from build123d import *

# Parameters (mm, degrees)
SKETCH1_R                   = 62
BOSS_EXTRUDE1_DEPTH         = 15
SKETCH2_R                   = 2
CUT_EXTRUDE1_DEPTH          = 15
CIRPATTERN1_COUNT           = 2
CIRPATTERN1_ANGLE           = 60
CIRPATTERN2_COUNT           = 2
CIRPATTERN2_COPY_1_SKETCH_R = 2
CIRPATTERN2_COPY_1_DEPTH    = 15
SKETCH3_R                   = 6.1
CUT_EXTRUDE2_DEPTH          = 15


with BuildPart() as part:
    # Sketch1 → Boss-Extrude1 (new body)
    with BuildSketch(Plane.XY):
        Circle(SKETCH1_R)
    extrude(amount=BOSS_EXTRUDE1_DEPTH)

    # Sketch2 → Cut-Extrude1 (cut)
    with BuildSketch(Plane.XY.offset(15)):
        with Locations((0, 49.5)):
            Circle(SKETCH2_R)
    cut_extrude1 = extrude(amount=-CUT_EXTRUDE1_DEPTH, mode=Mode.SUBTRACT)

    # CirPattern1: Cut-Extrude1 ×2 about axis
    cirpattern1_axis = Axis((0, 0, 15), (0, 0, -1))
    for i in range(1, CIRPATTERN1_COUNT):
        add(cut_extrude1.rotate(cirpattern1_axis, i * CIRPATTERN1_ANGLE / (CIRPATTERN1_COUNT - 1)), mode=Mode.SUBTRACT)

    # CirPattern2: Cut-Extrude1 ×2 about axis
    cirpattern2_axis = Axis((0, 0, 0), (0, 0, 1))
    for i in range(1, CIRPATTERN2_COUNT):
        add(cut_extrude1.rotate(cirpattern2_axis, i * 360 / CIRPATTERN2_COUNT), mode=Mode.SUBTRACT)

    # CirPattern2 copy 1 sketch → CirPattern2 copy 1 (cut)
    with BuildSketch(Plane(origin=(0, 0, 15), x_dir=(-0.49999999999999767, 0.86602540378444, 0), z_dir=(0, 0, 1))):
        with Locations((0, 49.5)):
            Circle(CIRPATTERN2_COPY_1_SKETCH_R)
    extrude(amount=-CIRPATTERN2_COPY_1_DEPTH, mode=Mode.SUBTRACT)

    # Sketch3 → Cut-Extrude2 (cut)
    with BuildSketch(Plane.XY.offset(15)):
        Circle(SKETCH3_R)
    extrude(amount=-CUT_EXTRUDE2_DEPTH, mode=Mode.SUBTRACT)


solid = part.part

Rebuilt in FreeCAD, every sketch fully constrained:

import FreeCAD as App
import Part
import Sketcher

V = App.Vector
Q = App.Units.Quantity

doc = App.newDocument("Part")
params = doc.addObject("Spreadsheet::Sheet", "Params")
for row, (alias, value) in enumerate([
    ("sketch1_diameter", "124 mm"),
    ("pad1_length", "15 mm"),
    ("sketch2_diameter", "4 mm"),
    ("pocket1_length", "15 mm"),
    ("sketch3_diameter", "4 mm"),
    ("pocket2_length", "15 mm"),
    ("sketch4_diameter", "12.2 mm"),
    ("pocket3_length", "15 mm"),
], start=1):
    params.set(f"A{row}", alias)
    params.set(f"B{row}", "=" + value)
    params.setAlias(f"B{row}", alias)

body = doc.addObject("PartDesign::Body", "Body")

sketch1 = body.newObject("Sketcher::SketchObject", "Sketch")
sketch1.AttachmentSupport = (doc.getObject("XY_Plane"), [""])
sketch1.MapMode = "FlatFace"
sketch1.addGeometry(Part.Circle(V(0, 0, 0), V(0, 0, 1), 62), False)
sketch1.addConstraint(Sketcher.Constraint("Coincident", 0, 3, -1, 1))
sketch1.addConstraint(Sketcher.Constraint("Diameter", 0, Q("124 mm")))
sketch1.setExpression("Constraints[1]", "Params.sketch1_diameter")
pad1 = body.newObject("PartDesign::Pad", "Pad")
pad1.Profile = sketch1
pad1.setExpression("Length", "Params.pad1_length")

sketch2 = body.newObject("Sketcher::SketchObject", "Sketch001")
sketch2.AttachmentSupport = (doc.getObject("XY_Plane"), [""])
sketch2.MapMode = "FlatFace"
sketch2.AttachmentOffset = App.Placement(V(0, 0, 15), App.Rotation())
sketch2.addGeometry(Part.Circle(V(0, 49.5, 0), V(0, 0, 1), 2), False)
sketch2.addConstraint(Sketcher.Constraint("PointOnObject", 0, 3, -2))
sketch2.addConstraint(Sketcher.Constraint("Diameter", 0, Q("4 mm")))
sketch2.addConstraint(Sketcher.Constraint("DistanceY", -1, 1, 0, 3, Q("49.5 mm")))
sketch2.setExpression("Constraints[1]", "Params.sketch2_diameter")
pocket1 = body.newObject("PartDesign::Pocket", "Pocket")
pocket1.Profile = sketch2
pocket1.setExpression("Length", "Params.pocket1_length")
doc.recompute()

polarpattern = body.newObject("PartDesign::PolarPattern", "PolarPattern")
polarpattern.Originals = [pocket1]
polarpattern.Axis = (doc.getObject("Z_Axis"), [""])
polarpattern.Angle = 60
polarpattern.Occurrences = 2
polarpattern.Reversed = True
body.Tip = polarpattern
doc.recompute()

polarpattern2 = body.newObject("PartDesign::PolarPattern", "PolarPattern001")
polarpattern2.Originals = [pocket1]
polarpattern2.Axis = (doc.getObject("Z_Axis"), [""])
polarpattern2.Angle = 360
polarpattern2.Occurrences = 2
body.Tip = polarpattern2

sketch3 = body.newObject("Sketcher::SketchObject", "Sketch002")
sketch3.AttachmentSupport = (doc.getObject("XY_Plane"), [""])
sketch3.MapMode = "FlatFace"
sketch3.AttachmentOffset = App.Placement(V(0, 0, 15), App.Rotation())
sketch3.addGeometry(Part.Circle(V(-42.9, -24.8, 0), V(0, 0, 1), 2), False)
sketch3.addConstraint(Sketcher.Constraint("Diameter", 0, Q("4 mm")))
sketch3.addConstraint(Sketcher.Constraint("DistanceY", 0, 3, -1, 1, Q("24.75 mm")))
sketch3.addConstraint(Sketcher.Constraint("DistanceX", 0, 3, -1, 1, Q("42.868257 mm")))
sketch3.setExpression("Constraints[0]", "Params.sketch3_diameter")
pocket2 = body.newObject("PartDesign::Pocket", "Pocket001")
pocket2.Profile = sketch3
pocket2.setExpression("Length", "Params.pocket2_length")

sketch4 = body.newObject("Sketcher::SketchObject", "Sketch003")
sketch4.AttachmentSupport = (doc.getObject("XY_Plane"), [""])
sketch4.MapMode = "FlatFace"
sketch4.AttachmentOffset = App.Placement(V(0, 0, 15), App.Rotation())
sketch4.addGeometry(Part.Circle(V(0, 0, 0), V(0, 0, 1), 6), False)
sketch4.addConstraint(Sketcher.Constraint("Coincident", 0, 3, -1, 1))
sketch4.addConstraint(Sketcher.Constraint("Diameter", 0, Q("12.2 mm")))
sketch4.setExpression("Constraints[1]", "Params.sketch4_diameter")
pocket3 = body.newObject("PartDesign::Pocket", "Pocket002")
pocket3.Profile = sketch4
pocket3.setExpression("Length", "Params.pocket3_length")

doc.recompute()
